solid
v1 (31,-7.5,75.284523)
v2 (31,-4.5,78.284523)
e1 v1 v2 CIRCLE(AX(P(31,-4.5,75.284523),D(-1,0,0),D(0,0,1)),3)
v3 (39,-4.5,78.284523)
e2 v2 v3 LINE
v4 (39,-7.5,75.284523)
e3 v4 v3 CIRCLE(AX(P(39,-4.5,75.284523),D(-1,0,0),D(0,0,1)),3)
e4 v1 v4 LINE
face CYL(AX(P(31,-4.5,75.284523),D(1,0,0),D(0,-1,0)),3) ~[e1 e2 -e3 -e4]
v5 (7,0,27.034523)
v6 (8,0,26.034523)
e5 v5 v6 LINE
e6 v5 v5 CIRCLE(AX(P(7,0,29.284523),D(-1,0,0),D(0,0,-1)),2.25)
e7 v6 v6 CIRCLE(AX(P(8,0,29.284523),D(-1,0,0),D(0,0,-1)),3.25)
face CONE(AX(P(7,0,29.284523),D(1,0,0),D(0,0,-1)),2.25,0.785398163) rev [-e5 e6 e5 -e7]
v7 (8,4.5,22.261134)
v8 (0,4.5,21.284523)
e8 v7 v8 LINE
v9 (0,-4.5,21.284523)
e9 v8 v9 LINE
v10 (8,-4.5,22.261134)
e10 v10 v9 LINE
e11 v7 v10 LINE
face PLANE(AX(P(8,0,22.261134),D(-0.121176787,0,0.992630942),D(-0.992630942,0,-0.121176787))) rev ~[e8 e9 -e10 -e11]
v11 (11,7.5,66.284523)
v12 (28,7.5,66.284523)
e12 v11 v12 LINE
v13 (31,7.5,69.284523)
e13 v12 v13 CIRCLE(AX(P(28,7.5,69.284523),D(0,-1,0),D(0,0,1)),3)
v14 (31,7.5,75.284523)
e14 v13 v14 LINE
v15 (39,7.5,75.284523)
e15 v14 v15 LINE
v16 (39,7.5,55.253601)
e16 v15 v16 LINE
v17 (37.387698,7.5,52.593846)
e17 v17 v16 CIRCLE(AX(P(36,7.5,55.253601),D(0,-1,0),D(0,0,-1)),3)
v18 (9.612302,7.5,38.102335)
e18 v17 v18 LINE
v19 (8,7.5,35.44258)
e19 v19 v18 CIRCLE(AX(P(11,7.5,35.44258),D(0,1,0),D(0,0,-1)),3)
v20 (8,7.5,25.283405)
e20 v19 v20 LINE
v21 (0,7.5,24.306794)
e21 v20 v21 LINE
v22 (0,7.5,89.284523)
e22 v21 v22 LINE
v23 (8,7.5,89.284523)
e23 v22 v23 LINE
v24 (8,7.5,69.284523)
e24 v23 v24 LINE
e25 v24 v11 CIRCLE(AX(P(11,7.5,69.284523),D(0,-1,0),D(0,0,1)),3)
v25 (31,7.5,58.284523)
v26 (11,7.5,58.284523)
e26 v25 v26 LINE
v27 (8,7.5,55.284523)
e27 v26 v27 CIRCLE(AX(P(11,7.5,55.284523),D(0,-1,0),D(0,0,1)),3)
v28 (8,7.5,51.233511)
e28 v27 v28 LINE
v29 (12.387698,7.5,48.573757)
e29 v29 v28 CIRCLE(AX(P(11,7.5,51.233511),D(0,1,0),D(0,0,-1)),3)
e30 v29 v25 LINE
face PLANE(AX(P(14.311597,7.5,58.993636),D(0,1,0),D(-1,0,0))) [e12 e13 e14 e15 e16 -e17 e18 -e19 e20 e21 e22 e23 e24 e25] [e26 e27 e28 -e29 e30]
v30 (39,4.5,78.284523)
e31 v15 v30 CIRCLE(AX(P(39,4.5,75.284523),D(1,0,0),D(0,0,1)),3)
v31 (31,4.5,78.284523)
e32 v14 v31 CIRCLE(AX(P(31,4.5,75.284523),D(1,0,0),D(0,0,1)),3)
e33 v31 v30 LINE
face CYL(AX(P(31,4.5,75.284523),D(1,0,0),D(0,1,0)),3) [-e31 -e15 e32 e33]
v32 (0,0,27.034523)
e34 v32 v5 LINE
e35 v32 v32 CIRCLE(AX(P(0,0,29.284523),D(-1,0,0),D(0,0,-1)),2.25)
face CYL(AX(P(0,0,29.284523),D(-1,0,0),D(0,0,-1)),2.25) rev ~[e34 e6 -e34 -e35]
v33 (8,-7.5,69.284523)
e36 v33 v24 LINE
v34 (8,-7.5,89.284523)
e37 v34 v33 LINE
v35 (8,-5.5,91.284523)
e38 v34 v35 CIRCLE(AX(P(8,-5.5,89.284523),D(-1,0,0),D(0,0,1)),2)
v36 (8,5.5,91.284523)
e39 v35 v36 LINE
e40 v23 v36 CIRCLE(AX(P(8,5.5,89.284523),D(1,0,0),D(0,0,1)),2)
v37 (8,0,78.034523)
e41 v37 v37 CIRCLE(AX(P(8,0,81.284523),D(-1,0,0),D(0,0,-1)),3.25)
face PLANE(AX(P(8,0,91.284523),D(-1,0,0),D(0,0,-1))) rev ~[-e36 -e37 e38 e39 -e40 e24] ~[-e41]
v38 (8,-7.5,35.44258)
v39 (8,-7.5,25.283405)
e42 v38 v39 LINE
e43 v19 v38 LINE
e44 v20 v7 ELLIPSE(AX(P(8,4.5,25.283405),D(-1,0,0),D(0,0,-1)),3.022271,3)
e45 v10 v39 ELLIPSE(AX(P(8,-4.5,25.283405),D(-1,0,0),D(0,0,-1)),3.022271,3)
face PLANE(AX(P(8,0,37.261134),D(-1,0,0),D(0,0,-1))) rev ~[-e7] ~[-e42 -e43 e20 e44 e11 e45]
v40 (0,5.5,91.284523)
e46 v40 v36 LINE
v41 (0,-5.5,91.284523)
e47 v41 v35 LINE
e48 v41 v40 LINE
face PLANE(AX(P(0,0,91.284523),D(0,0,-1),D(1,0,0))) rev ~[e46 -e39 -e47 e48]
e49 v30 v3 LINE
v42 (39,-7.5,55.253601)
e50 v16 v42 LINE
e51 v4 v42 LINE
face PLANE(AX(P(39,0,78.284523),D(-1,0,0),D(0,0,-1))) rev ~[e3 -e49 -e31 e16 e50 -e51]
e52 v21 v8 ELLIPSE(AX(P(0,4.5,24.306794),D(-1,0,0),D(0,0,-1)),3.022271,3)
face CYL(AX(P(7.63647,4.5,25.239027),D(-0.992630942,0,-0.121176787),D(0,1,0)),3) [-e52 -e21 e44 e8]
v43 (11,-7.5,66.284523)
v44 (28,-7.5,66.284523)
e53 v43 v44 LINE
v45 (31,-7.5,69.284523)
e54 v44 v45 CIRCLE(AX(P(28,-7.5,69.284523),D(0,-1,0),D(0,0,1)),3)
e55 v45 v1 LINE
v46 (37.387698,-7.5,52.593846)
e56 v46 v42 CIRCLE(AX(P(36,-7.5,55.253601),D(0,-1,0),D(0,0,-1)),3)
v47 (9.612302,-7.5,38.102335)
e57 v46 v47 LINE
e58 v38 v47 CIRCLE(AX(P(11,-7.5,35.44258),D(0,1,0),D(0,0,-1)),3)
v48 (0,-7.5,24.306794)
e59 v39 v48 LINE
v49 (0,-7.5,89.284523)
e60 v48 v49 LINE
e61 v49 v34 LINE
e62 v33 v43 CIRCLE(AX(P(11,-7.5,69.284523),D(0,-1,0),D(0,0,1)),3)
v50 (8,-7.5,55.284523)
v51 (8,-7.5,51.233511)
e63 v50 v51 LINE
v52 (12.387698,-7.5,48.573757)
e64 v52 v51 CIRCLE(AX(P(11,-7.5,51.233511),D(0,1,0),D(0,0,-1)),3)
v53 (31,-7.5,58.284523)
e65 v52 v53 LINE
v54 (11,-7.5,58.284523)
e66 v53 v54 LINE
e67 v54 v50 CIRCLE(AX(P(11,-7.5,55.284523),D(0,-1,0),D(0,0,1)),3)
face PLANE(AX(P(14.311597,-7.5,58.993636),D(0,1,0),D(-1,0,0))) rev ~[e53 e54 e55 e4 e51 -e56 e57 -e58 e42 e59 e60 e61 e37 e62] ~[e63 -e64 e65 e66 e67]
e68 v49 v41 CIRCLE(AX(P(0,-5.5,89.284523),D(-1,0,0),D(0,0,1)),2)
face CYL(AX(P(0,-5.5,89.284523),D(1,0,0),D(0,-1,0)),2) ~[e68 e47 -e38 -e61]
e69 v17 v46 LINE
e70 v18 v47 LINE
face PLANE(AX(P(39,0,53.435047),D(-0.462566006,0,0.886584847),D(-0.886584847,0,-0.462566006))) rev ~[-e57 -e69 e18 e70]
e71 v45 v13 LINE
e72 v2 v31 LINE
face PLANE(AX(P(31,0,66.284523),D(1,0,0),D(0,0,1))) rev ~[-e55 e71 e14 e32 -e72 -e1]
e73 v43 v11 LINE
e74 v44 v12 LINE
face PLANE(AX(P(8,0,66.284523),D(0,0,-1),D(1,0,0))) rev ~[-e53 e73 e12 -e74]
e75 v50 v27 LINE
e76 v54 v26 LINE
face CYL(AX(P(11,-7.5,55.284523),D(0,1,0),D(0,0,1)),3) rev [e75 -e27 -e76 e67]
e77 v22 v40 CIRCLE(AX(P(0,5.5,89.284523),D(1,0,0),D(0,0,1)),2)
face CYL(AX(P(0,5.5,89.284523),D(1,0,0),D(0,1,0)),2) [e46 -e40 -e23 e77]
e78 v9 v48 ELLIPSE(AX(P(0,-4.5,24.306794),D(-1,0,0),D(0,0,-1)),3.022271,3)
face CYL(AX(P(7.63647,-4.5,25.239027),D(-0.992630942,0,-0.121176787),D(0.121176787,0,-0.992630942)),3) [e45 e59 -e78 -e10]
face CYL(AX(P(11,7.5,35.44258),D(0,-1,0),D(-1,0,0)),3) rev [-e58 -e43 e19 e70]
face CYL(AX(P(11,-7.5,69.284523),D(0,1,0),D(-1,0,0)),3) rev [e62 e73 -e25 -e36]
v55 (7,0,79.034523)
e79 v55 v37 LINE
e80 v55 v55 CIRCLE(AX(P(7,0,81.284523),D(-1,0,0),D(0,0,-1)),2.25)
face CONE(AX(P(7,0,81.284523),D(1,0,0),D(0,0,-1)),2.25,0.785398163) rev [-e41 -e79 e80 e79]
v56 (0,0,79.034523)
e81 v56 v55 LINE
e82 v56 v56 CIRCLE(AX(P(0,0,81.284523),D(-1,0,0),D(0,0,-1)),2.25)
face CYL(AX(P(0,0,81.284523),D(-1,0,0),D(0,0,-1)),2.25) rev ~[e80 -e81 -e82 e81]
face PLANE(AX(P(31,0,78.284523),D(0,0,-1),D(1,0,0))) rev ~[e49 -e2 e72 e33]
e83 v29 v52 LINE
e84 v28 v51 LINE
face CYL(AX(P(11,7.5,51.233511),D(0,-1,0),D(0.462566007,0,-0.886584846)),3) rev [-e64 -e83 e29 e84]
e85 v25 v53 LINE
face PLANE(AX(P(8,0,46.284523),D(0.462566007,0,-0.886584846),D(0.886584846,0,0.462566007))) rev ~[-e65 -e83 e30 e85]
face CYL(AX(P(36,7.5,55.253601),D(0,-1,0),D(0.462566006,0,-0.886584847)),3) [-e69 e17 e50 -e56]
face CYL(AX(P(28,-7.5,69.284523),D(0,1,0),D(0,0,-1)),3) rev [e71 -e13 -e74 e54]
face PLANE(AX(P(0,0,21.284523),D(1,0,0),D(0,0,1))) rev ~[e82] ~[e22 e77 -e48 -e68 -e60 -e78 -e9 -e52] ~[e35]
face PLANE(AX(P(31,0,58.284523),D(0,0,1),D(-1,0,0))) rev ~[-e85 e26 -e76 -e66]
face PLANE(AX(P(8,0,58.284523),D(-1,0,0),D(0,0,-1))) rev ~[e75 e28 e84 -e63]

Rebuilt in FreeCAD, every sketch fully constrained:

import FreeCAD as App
import Part
import Sketcher
from FreeCAD import Vector
Q = App.Units.Quantity


def edges_at(feature, points):
    """Names of the edges that pass closest to the given points."""
    edges = feature.Shape.Edges
    near = lambda p: min(range(len(edges)), key=lambda i: edges[i].distToShape(Part.Vertex(*p))[0])
    return sorted({f"Edge{near(p) + 1}" for p in points})


def add_polygon(sketch, points):
    """Adds a closed chain of lines whose ends are joined by coincident constraints."""
    first, n = sketch.GeometryCount, len(points)
    for a, b in zip(points, points[1:] + points[:1]):
        sketch.addGeometry(Part.LineSegment(App.Vector(*a, 0), App.Vector(*b, 0)), False)
    for i in range(n):
        sketch.addConstraint(Sketcher.Constraint("Coincident", first + i, 2, first + (i + 1) % n, 1))

doc = App.newDocument("Part")
params = doc.addObject("Spreadsheet::Sheet", "Params")
for row, (alias, value) in enumerate([
    ("sketch1_width", "8 mm"),
    ("sketch1_width2", "23 mm"),
    ("sketch1_height", "70 mm"),
    ("sketch1_height2", "15 mm"),
    ("sketch1_height3", "12 mm"),
    ("pad1_length", "15 mm"),
    ("sketch2_diameter", "4.5 mm"),
    ("pocket1_length", "8 mm"),
    ("chamfer_size", "1 mm"),
    ("fillet_radius", "2 mm"),
    ("fillet2_radius", "3 mm"),
    ("fillet3_radius", "3 mm"),
    ("fillet4_radius", "3 mm"),
], start=1):
    params.set(f"A{row}", alias)
    params.set(f"B{row}", "=" + value)
    params.setAlias(f"B{row}", alias)

body = doc.addObject("PartDesign::Body", "Body")

sketch1 = body.newObject("Sketcher::SketchObject", "Sketch")
sketch1.AttachmentSupport = (doc.getObject("XZ_Plane"), [""])
sketch1.MapMode = "FlatFace"
add_polygon(sketch1, [(0, 91), (0, 21), (8, 22), (8, 37), (39, 53), (39, 78), (31, 78), (31, 66), (8, 66), (8, 91)])
add_polygon(sketch1, [(8, 58), (31, 58), (8, 46)])
sketch1.addConstraint(Sketcher.Constraint("Vertical", 0))
sketch1.addConstraint(Sketcher.Constraint("Vertical", 2))
sketch1.addConstraint(Sketcher.Constraint("Vertical", 4))
sketch1.addConstraint(Sketcher.Constraint("Horizontal", 5))
sketch1.addConstraint(Sketcher.Constraint("Vertical", 6))
sketch1.addConstraint(Sketcher.Constraint("Horizontal", 7))
sketch1.addConstraint(Sketcher.Constraint("Vertical", 8))
sketch1.addConstraint(Sketcher.Constraint("Horizontal", 9))
sketch1.addConstraint(Sketcher.Constraint("Horizontal", 10))
sketch1.addConstraint(Sketcher.Constraint("Vertical", 12))
sketch1.addConstraint(Sketcher.Constraint("PointOnObject", 0, 2, -2))
sketch1.addConstraint(Sketcher.Constraint("Parallel", 3, 11))
sketch1.addConstraint(Sketcher.Constraint("Vertical", 2, 2, 7, 2))
sketch1.addConstraint(Sketcher.Constraint("Vertical", 6, 2, 10, 2))
sketch1.addConstraint(Sketcher.Constraint("Vertical", 8, 2, 11, 2))
sketch1.addConstraint(Sketcher.Constraint("Equal", 5, 9))
sketch1.addConstraint(Sketcher.Constraint("Equal", 6, 12))
sketch1.addConstraint(Sketcher.Constraint("DistanceX", 5, 2, 5, 1, Q("8 mm")))
sketch1.addConstraint(Sketcher.Constraint("DistanceX", 7, 2, 7, 1, Q("23 mm")))
sketch1.addConstraint(Sketcher.Constraint("DistanceY", 0, 2, 0, 1, Q("70 mm")))
sketch1.addConstraint(Sketcher.Constraint("DistanceY", 2, 1, 2, 2, Q("15 mm")))
sketch1.addConstraint(Sketcher.Constraint("DistanceY", 6, 2, 6, 1, Q("12 mm")))
sketch1.addConstraint(Sketcher.Constraint("DistanceY", 8, 1, 8, 2, Q("25 mm")))
sketch1.addConstraint(Sketcher.Constraint("DistanceY", 10, 2, 6, 2, Q("8 mm")))
sketch1.addConstraint(Sketcher.Constraint("Distance", 1, Q("8.05939 mm")))
sketch1.addConstraint(Sketcher.Constraint("DistanceY", -1, 1, 0, 2, Q("21.284523 mm")))
sketch1.setExpression("Constraints[30]", "Params.sketch1_width")
sketch1.setExpression("Constraints[31]", "Params.sketch1_width2")
sketch1.setExpression("Constraints[32]", "Params.sketch1_height")
sketch1.setExpression("Constraints[33]", "Params.sketch1_height2")
sketch1.setExpression("Constraints[34]", "Params.sketch1_height3")
pad1 = body.newObject("PartDesign::Pad", "Pad")
pad1.Profile = sketch1
pad1.setExpression("Length", "Params.pad1_length")
pad1.Midplane = True

sketch2 = body.newObject("Sketcher::SketchObject", "Sketch001")
sketch2.AttachmentSupport = (doc.getObject("YZ_Plane"), [""])
sketch2.MapMode = "FlatFace"
sketch2.addGeometry(Part.Circle(Vector(0, 81.3, 0), Vector(0, 0, 1), 2.2), False)
sketch2.addGeometry(Part.Circle(Vector(0, 29.3, 0), Vector(0, 0, 1), 2.2), False)
sketch2.addConstraint(Sketcher.Constraint("Equal", 0, 1))
sketch2.addConstraint(Sketcher.Constraint("PointOnObject", 0, 3, -2))
sketch2.addConstraint(Sketcher.Constraint("PointOnObject", 1, 3, -2))
sketch2.addConstraint(Sketcher.Constraint("Diameter", 0, Q("4.5 mm")))
sketch2.addConstraint(Sketcher.Constraint("DistanceY", 1, 3, 0, 3, Q("52 mm")))
sketch2.addConstraint(Sketcher.Constraint("DistanceY", -1, 1, 0, 3, Q("81.284523 mm")))
sketch2.setExpression("Constraints[3]", "Params.sketch2_diameter")
pocket1 = body.newObject("PartDesign::Pocket", "Pocket")
pocket1.Profile = sketch2
pocket1.setExpression("Length", "Params.pocket1_length")
pocket1.Reversed = True
doc.recompute()

chamfer = body.newObject("PartDesign::Chamfer", "Chamfer")
chamfer.Base = (pocket1, edges_at(pocket1, [(8, 0, 83.535), (8, 0, 31.535)]))
chamfer.setExpression("Size", "Params.chamfer_size")
doc.recompute()

fillet = body.newObject("PartDesign::Fillet", "Fillet")
fillet.Base = (chamfer, edges_at(chamfer, [(4, -7.5, 91.285), (4, 7.5, 91.285)]))
fillet.setExpression("Radius", "Params.fillet_radius")
doc.recompute()

fillet2 = body.newObject("PartDesign::Fillet", "Fillet001")
fillet2.Base = (fillet, edges_at(fillet, [(39, 0, 53.435), (4, -7.5, 21.773), (4, 7.5, 21.773)]))
fillet2.setExpression("Radius", "Params.fillet2_radius")
doc.recompute()

fillet3 = body.newObject("PartDesign::Fillet", "Fillet002")
fillet3.Base = (fillet2, edges_at(fillet2, [(35, -7.5, 78.285), (35, 7.5, 78.285), (8, 0, 37.261)]))
fillet3.setExpression("Radius", "Params.fillet3_radius")
doc.recompute()

fillet4 = body.newObject("PartDesign::Fillet", "Fillet003")
fillet4.Base = (fillet3, edges_at(fillet3, [
    (8, 0, 58.285),
    (8, 0, 46.285),
    (8, 0, 66.285),
    (31, 0, 66.285),
]))
fillet4.setExpression("Radius", "Params.fillet4_radius")

doc.recompute()
